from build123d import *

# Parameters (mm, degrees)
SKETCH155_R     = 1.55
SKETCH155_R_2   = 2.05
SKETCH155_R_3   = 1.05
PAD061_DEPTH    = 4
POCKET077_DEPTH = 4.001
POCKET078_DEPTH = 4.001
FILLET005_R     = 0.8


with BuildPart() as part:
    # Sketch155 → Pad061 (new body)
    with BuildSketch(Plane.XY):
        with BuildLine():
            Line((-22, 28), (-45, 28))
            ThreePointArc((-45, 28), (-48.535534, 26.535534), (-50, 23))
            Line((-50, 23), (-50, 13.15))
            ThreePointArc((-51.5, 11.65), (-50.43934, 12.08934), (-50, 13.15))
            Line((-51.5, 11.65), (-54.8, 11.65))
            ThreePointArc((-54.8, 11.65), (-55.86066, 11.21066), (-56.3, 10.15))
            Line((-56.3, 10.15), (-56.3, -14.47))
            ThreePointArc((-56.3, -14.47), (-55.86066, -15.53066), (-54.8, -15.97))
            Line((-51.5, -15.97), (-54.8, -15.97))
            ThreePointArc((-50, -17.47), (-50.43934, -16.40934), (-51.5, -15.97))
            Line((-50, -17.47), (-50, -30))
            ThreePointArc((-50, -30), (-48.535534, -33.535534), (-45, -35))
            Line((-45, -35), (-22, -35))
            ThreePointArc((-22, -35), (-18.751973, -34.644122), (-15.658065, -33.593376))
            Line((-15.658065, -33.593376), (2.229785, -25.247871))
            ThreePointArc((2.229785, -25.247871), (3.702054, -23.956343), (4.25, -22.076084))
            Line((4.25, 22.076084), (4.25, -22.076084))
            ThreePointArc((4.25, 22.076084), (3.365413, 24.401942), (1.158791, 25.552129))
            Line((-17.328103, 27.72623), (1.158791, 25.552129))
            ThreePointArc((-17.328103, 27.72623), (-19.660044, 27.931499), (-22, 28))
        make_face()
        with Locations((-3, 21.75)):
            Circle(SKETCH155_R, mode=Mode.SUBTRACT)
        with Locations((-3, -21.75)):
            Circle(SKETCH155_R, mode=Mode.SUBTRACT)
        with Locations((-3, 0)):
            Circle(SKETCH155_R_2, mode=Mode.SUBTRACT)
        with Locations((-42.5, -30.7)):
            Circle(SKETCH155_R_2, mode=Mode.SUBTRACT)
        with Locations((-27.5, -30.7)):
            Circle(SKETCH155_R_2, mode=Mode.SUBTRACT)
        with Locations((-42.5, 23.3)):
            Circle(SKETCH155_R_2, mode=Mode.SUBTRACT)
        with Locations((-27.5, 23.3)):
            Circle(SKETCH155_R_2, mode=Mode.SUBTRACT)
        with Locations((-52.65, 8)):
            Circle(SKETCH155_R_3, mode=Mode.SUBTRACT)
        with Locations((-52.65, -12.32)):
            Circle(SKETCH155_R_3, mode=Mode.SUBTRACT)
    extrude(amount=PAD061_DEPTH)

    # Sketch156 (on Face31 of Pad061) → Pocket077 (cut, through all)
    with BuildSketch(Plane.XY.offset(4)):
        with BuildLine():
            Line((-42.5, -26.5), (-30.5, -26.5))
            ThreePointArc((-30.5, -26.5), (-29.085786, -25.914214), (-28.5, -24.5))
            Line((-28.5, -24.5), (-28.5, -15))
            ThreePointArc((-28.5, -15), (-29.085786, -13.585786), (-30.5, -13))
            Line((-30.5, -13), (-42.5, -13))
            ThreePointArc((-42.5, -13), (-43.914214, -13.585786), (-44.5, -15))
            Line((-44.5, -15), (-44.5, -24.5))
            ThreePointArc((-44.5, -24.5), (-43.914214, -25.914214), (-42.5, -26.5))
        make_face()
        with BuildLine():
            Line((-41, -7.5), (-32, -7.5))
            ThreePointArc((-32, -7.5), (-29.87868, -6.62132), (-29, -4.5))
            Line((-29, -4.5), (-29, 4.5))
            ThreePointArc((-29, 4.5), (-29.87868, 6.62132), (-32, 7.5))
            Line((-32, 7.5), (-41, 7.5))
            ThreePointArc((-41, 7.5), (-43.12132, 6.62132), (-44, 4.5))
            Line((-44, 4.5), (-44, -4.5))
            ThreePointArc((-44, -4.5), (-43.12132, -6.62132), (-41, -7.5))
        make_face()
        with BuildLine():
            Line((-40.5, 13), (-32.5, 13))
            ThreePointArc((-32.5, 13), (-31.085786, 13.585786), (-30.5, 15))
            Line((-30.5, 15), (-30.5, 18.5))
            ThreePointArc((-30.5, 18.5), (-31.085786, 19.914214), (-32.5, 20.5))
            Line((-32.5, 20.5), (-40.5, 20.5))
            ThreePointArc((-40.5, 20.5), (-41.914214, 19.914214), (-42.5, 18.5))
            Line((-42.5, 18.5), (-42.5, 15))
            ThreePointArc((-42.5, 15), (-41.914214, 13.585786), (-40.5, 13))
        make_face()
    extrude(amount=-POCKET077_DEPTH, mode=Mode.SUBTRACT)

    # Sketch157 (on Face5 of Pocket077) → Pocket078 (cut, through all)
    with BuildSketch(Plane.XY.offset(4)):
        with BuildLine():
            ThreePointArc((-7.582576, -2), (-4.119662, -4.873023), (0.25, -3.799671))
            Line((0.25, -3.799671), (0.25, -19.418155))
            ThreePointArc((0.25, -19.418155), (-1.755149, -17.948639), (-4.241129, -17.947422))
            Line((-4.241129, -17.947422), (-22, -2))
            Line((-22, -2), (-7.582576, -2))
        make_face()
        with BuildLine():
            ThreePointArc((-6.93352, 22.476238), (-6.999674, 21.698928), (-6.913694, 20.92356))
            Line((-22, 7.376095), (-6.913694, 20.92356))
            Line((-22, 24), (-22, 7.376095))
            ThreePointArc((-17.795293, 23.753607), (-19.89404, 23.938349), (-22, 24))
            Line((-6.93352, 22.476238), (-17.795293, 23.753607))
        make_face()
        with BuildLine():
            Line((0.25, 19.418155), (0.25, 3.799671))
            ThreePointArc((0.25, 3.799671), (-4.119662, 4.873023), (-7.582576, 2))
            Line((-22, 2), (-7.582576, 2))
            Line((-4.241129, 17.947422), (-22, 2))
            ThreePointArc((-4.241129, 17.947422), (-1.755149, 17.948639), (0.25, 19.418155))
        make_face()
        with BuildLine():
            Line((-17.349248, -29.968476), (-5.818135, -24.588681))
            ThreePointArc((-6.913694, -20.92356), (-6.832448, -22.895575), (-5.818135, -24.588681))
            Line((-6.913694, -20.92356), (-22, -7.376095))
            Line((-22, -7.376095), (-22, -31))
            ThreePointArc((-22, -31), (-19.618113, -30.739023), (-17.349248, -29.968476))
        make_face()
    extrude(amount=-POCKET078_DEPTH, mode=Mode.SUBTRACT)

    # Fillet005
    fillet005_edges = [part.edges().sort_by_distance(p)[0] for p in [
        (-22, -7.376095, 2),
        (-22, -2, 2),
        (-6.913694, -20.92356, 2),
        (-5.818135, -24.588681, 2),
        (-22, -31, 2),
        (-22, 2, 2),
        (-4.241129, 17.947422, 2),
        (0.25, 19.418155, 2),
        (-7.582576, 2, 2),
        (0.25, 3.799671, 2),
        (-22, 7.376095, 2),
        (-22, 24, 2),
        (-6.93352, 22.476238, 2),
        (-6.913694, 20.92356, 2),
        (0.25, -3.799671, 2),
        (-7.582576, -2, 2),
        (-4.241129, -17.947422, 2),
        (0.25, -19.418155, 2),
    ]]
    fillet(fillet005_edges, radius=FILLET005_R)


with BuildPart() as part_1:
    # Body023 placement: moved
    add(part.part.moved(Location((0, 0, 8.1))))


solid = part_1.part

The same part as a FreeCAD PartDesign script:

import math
import FreeCAD as App
import Part
import Sketcher


def edges_at(feature, points):
    """Names of the edges that pass closest to the given points."""
    edges = feature.Shape.Edges
    near = lambda p: min(range(len(edges)), key=lambda i: edges[i].distToShape(Part.Vertex(*p))[0])
    return sorted({f"Edge{near(p) + 1}" for p in points})

doc = App.newDocument("Part")
body = doc.addObject("PartDesign::Body", "Body")

sketch1 = body.newObject("Sketcher::SketchObject", "Sketch")
sketch1.AttachmentSupport = (doc.getObject("XY_Plane"), [""])
sketch1.MapMode = "FlatFace"
sketch1.addGeometry([
    Part.LineSegment(App.Vector(-22, 28, 0), App.Vector(-45, 28, 0)),
    Part.ArcOfCircle(Part.Circle(App.Vector(-45, 23, 0), App.Vector(0, 0, 1), 5), math.radians(89.999996), math.radians(180.000004)),
    Part.LineSegment(App.Vector(-50, 23, 0), App.Vector(-50, 13.15, 0)),
    Part.ArcOfCircle(Part.Circle(App.Vector(-51.500001, 13.150001, 0), App.Vector(0, 0, 1), 1.500001), math.radians(-89.999978), math.radians(-0.000022)),
    Part.LineSegment(App.Vector(-51.5, 11.65, 0), App.Vector(-54.8, 11.65, 0)),
    Part.ArcOfCircle(Part.Circle(App.Vector(-54.799999, 10.149999, 0), App.Vector(0, 0, 1), 1.500001), math.radians(90.000022), math.radians(179.999978)),
    Part.LineSegment(App.Vector(-56.3, 10.15, 0), App.Vector(-56.3, -14.47, 0)),
    Part.ArcOfCircle(Part.Circle(App.Vector(-54.799999, -14.469999, 0), App.Vector(0, 0, 1), 1.500001), math.radians(-179.999978), math.radians(-90.000022)),
    Part.LineSegment(App.Vector(-54.8, -15.97, 0), App.Vector(-51.5, -15.97, 0)),
    Part.ArcOfCircle(Part.Circle(App.Vector(-51.500001, -17.470001, 0), App.Vector(0, 0, 1), 1.500001), math.radians(0.000022), math.radians(89.999978)),
    Part.LineSegment(App.Vector(-50, -17.47, 0), App.Vector(-50, -30, 0)),
    Part.ArcOfCircle(Part.Circle(App.Vector(-45, -30, 0), App.Vector(0, 0, 1), 5), math.radians(179.999996), math.radians(270.000004)),
    Part.LineSegment(App.Vector(-45, -35, 0), App.Vector(-22, -35, 0)),
    Part.ArcOfCircle(Part.Circle(App.Vector(-22.000004, -19.999977, 0), App.Vector(0, 0, 1), 15.000023), math.radians(-89.999984), math.radians(-64.988807)),
    Part.LineSegment(App.Vector(-15.658065, -33.593376, 0), App.Vector(2.229785, -25.247871, 0)),
    Part.ArcOfCircle(Part.Circle(App.Vector(0.749999, -22.076083, 0), App.Vector(0, 0, 1), 3.500001), math.radians(-64.988772), math.radians(-0.000018)),
    Part.LineSegment(App.Vector(4.25, -22.076084, 0), App.Vector(4.25, 22.076084, 0)),
    Part.ArcOfCircle(Part.Circle(App.Vector(0.750001, 22.076084, 0), App.Vector(0, 0, 1), 3.499999), math.radians(-0.000006), math.radians(83.292699)),
    Part.LineSegment(App.Vector(1.158791, 25.552129, 0), App.Vector(-17.328103, 27.72623, 0)),
    Part.ArcOfCircle(Part.Circle(App.Vector(-21.999994, -11.999849, 0), App.Vector(0, 0, 1), 39.999849), math.radians(83.292674), math.radians(90.000008)),
    Part.Circle(App.Vector(-42.5, -30.7, 0), App.Vector(0, 0, 1), 2.05),
    Part.Circle(App.Vector(-27.5, -30.7, 0), App.Vector(0, 0, 1), 2.05),
    Part.Circle(App.Vector(-52.65, -12.32, 0), App.Vector(0, 0, 1), 1.05),
    Part.Circle(App.Vector(-3, -21.75, 0), App.Vector(0, 0, 1), 1.55),
    Part.Circle(App.Vector(-52.65, 8, 0), App.Vector(0, 0, 1), 1.05),
    Part.Circle(App.Vector(-42.5, 23.3, 0), App.Vector(0, 0, 1), 2.05),
    Part.Circle(App.Vector(-27.5, 23.3, 0), App.Vector(0, 0, 1), 2.05),
    Part.Circle(App.Vector(-3, 0, 0), App.Vector(0, 0, 1), 2.05),
    Part.Circle(App.Vector(-3, 21.75, 0), App.Vector(0, 0, 1), 1.55),
], False)
sketch1.addConstraint([
    Sketcher.Constraint("Tangent", 0, 2, 1, 1),
    Sketcher.Constraint("Tangent", 1, 2, 2, 1),
    Sketcher.Constraint("Tangent", 2, 2, 3, 2),
    Sketcher.Constraint("Tangent", 3, 1, 4, 1),
    Sketcher.Constraint("Tangent", 4, 2, 5, 1),
    Sketcher.Constraint("Tangent", 5, 2, 6, 1),
    Sketcher.Constraint("Tangent", 6, 2, 7, 1),
    Sketcher.Constraint("Tangent", 7, 2, 8, 1),
    Sketcher.Constraint("Tangent", 8, 2, 9, 2),
    Sketcher.Constraint("Tangent", 9, 1, 10, 1),
    Sketcher.Constraint("Tangent", 10, 2, 11, 1),
    Sketcher.Constraint("Tangent", 11, 2, 12, 1),
    Sketcher.Constraint("Tangent", 12, 2, 13, 1),
    Sketcher.Constraint("Tangent", 13, 2, 14, 1),
    Sketcher.Constraint("Tangent", 14, 2, 15, 1),
    Sketcher.Constraint("Tangent", 15, 2, 16, 1),
    Sketcher.Constraint("Tangent", 16, 2, 17, 1),
    Sketcher.Constraint("Tangent", 17, 2, 18, 1),
    Sketcher.Constraint("Tangent", 18, 2, 19, 1),
    Sketcher.Constraint("Tangent", 19, 2, 0, 1),
    Sketcher.Constraint("Horizontal", 0),
    Sketcher.Constraint("Vertical", 2),
    Sketcher.Constraint("Horizontal", 4),
    Sketcher.Constraint("Vertical", 6),
    Sketcher.Constraint("Horizontal", 8),
    Sketcher.Constraint("Vertical", 10),
    Sketcher.Constraint("Horizontal", 12),
    Sketcher.Constraint("Vertical", 16),
    Sketcher.Constraint("Equal", 3, 5),
    Sketcher.Constraint("Equal", 5, 7),
    Sketcher.Constraint("Equal", 7, 9),
    Sketcher.Constraint("Equal", 1, 11),
    Sketcher.Constraint("Equal", 15, 17),
    Sketcher.Constraint("Equal", 20, 21),
    Sketcher.Constraint("Equal", 22, 24),
    Sketcher.Constraint("Equal", 21, 25),
    Sketcher.Constraint("Equal", 25, 26),
    Sketcher.Constraint("Equal", 26, 27),
    Sketcher.Constraint("Equal", 23, 28),
    Sketcher.Constraint("Symmetric", 23, 3, 28, 3, -1),
    Sketcher.Constraint("PointOnObject", 27, 3, -1),
    Sketcher.Constraint("Horizontal", 20, 3, 21, 3),
    Sketcher.Constraint("Horizontal", 25, 3, 26, 3),
    Sketcher.Constraint("Vertical", 3, 3, 9, 3),
    Sketcher.Constraint("Vertical", 22, 3, 24, 3),
    Sketcher.Constraint("Vertical", 20, 3, 25, 3),
    Sketcher.Constraint("Vertical", 21, 3, 26, 3),
    Sketcher.Constraint("Vertical", 23, 3, 27, 3),
    Sketcher.Constraint("Vertical", 12, 2, 19, 2),
    Sketcher.Constraint("Radius", 1, 5.0),
    Sketcher.Constraint("Diameter", 20, 4.1),
    Sketcher.Constraint("Diameter", 22, 2.1),
    Sketcher.Constraint("Diameter", 23, 3.1),
    Sketcher.Constraint("Radius", 3, 1.500001),
    Sketcher.Constraint("Radius", 15, 3.500001),
    Sketcher.Constraint("DistanceX", 0, 2, 0, 1, 23.0),
    Sketcher.Constraint("DistanceX", 4, 2, 4, 1, 3.3),
    Sketcher.Constraint("DistanceX", 1, 3, -1, 1, 45.0),
    Sketcher.Constraint("DistanceY", -1, 1, 1, 3, 23.0),
    Sketcher.Constraint("DistanceY", 11, 3, -1, 1, 30.0),
    Sketcher.Constraint("DistanceX", 23, 3, -1, 1, 3.0),
    Sketcher.Constraint("DistanceY", -1, 1, 24, 3, 8.0),
    Sketcher.Constraint("DistanceX", 9, 3, 20, 3, 9.000001),
    Sketcher.Constraint("DistanceX", 20, 3, 21, 3, 15.0),
    Sketcher.Constraint("DistanceY", 2, 2, 2, 1, 9.85),
    Sketcher.Constraint("DistanceY", 6, 2, 6, 1, 24.62),
    Sketcher.Constraint("DistanceY", 20, 3, -1, 1, 30.7),
    Sketcher.Constraint("DistanceY", -1, 1, 25, 3, 23.3),
    Sketcher.Constraint("DistanceX", -1, 1, 15, 3, 0.749999),
    Sketcher.Constraint("DistanceX", 22, 3, -1, 1, 52.65),
    Sketcher.Constraint("DistanceY", 22, 3, -1, 1, 12.32),
    Sketcher.Constraint("DistanceY", 23, 3, -1, 1, 21.75),
    Sketcher.Constraint("Radius", 19, 39.999849),
    Sketcher.Constraint("Radius", 13, 15.000023),
    Sketcher.Constraint("DistanceY", 16, 1, 16, 2, 44.152168),
    Sketcher.Constraint("DistanceY", 13, 2, 13, 3, 13.593399),
])
pad1 = body.newObject("PartDesign::Pad", "Pad")
pad1.Profile = sketch1
pad1.Length = 4

sketch2 = body.newObject("Sketcher::SketchObject", "Sketch001")
sketch2.AttachmentSupport = (doc.getObject("XY_Plane"), [""])
sketch2.MapMode = "FlatFace"
sketch2.AttachmentOffset = App.Placement(App.Vector(0, 0, 4), App.Rotation())
sketch2.addGeometry([
    Part.LineSegment(App.Vector(-42.5, -26.5, 0), App.Vector(-30.5, -26.5, 0)),
    Part.ArcOfCircle(Part.Circle(App.Vector(-30.499999, -24.500001, 0), App.Vector(0, 0, 1), 1.999999), math.radians(-90.000043), math.radians(0.000043)),
    Part.LineSegment(App.Vector(-28.5, -24.5, 0), App.Vector(-28.5, -15, 0)),
    Part.ArcOfCircle(Part.Circle(App.Vector(-30.499999, -14.999999, 0), App.Vector(0, 0, 1), 1.999999), math.radians(-0.000043), math.radians(90.000043)),
    Part.LineSegment(App.Vector(-30.5, -13, 0), App.Vector(-42.5, -13, 0)),
    Part.ArcOfCircle(Part.Circle(App.Vector(-42.500001, -14.999999, 0), App.Vector(0, 0, 1), 1.999999), math.radians(89.999957), math.radians(180.000043)),
    Part.LineSegment(App.Vector(-44.5, -15, 0), App.Vector(-44.5, -24.5, 0)),
    Part.ArcOfCircle(Part.Circle(App.Vector(-42.500001, -24.500001, 0), App.Vector(0, 0, 1), 1.999999), math.radians(179.999957), math.radians(270.000043)),
    Part.LineSegment(App.Vector(-41, -7.5, 0), App.Vector(-32, -7.5, 0)),
    Part.ArcOfCircle(Part.Circle(App.Vector(-32.000001, -4.499999, 0), App.Vector(0, 0, 1), 3.000001), math.radians(-89.999978), math.radians(-0.000022)),
    Part.LineSegment(App.Vector(-29, -4.5, 0), App.Vector(-29, 4.5, 0)),
    Part.ArcOfCircle(Part.Circle(App.Vector(-32.000001, 4.499999, 0), App.Vector(0, 0, 1), 3.000001), math.radians(0.000022), math.radians(89.999978)),
    Part.LineSegment(App.Vector(-32, 7.5, 0), App.Vector(-41, 7.5, 0)),
    Part.ArcOfCircle(Part.Circle(App.Vector(-40.999999, 4.499999, 0), App.Vector(0, 0, 1), 3.000001), math.radians(90.000022), math.radians(179.999978)),
    Part.LineSegment(App.Vector(-44, 4.5, 0), App.Vector(-44, -4.5, 0)),
    Part.ArcOfCircle(Part.Circle(App.Vector(-40.999999, -4.499999, 0), App.Vector(0, 0, 1), 3.000001), math.radians(-179.999978), math.radians(-90.000022)),
    Part.LineSegment(App.Vector(-40.5, 13, 0), App.Vector(-32.5, 13, 0)),
    Part.ArcOfCircle(Part.Circle(App.Vector(-32.499999, 14.999999, 0), App.Vector(0, 0, 1), 1.999999), math.radians(-90.000043), math.radians(0.000043)),
    Part.LineSegment(App.Vector(-30.5, 15, 0), App.Vector(-30.5, 18.5, 0)),
    Part.ArcOfCircle(Part.Circle(App.Vector(-32.499999, 18.500001, 0), App.Vector(0, 0, 1), 1.999999), math.radians(-0.000043), math.radians(90.000043)),
    Part.LineSegment(App.Vector(-32.5, 20.5, 0), App.Vector(-40.5, 20.5, 0)),
    Part.ArcOfCircle(Part.Circle(App.Vector(-40.500001, 18.500001, 0), App.Vector(0, 0, 1), 1.999999), math.radians(89.999957), math.radians(180.000043)),
    Part.LineSegment(App.Vector(-42.5, 18.5, 0), App.Vector(-42.5, 15, 0)),
    Part.ArcOfCircle(Part.Circle(App.Vector(-40.500001, 14.999999, 0), App.Vector(0, 0, 1), 1.999999), math.radians(179.999957), math.radians(270.000043)),
], False)
sketch2.addConstraint([
    Sketcher.Constraint("Tangent", 0, 2, 1, 1),
    Sketcher.Constraint("Tangent", 1, 2, 2, 1),
    Sketcher.Constraint("Tangent", 2, 2, 3, 1),
    Sketcher.Constraint("Tangent", 3, 2, 4, 1),
    Sketcher.Constraint("Tangent", 4, 2, 5, 1),
    Sketcher.Constraint("Tangent", 5, 2, 6, 1),
    Sketcher.Constraint("Tangent", 6, 2, 7, 1),
    Sketcher.Constraint("Tangent", 7, 2, 0, 1),
    Sketcher.Constraint("Tangent", 8, 2, 9, 1),
    Sketcher.Constraint("Tangent", 9, 2, 10, 1),
    Sketcher.Constraint("Tangent", 10, 2, 11, 1),
    Sketcher.Constraint("Tangent", 11, 2, 12, 1),
    Sketcher.Constraint("Tangent", 12, 2, 13, 1),
    Sketcher.Constraint("Tangent", 13, 2, 14, 1),
    Sketcher.Constraint("Tangent", 14, 2, 15, 1),
    Sketcher.Constraint("Tangent", 15, 2, 8, 1),
    Sketcher.Constraint("Tangent", 16, 2, 17, 1),
    Sketcher.Constraint("Tangent", 17, 2, 18, 1),
    Sketcher.Constraint("Tangent", 18, 2, 19, 1),
    Sketcher.Constraint("Tangent", 19, 2, 20, 1),
    Sketcher.Constraint("Tangent", 20, 2, 21, 1),
    Sketcher.Constraint("Tangent", 21, 2, 22, 1),
    Sketcher.Constraint("Tangent", 22, 2, 23, 1),
    Sketcher.Constraint("Tangent", 23, 2, 16, 1),
    Sketcher.Constraint("Horizontal", 0),
    Sketcher.Constraint("Vertical", 2),
    Sketcher.Constraint("Horizontal", 4),
    Sketcher.Constraint("Vertical", 6),
    Sketcher.Constraint("Horizontal", 8),
    Sketcher.Constraint("Vertical", 10),
    Sketcher.Constraint("Horizontal", 12),
    Sketcher.Constraint("Vertical", 14),
    Sketcher.Constraint("Horizontal", 16),
    Sketcher.Constraint("Vertical", 18),
    Sketcher.Constraint("Horizontal", 20),
    Sketcher.Constraint("Vertical", 22),
    Sketcher.Constraint("Equal", 1, 3),
    Sketcher.Constraint("Equal", 3, 5),
    Sketcher.Constraint("Equal", 5, 7),
    Sketcher.Constraint("Equal", 9, 11),
    Sketcher.Constraint("Equal", 11, 13),
    Sketcher.Constraint("Equal", 13, 15),
    Sketcher.Constraint("Equal", 7, 17),
    Sketcher.Constraint("Equal", 17, 19),
    Sketcher.Constraint("Equal", 19, 21),
    Sketcher.Constraint("Equal", 21, 23),
    Sketcher.Constraint("Vertical", 3, 2, 17, 2),
    Sketcher.Constraint("Vertical", 7, 2, 21, 2),
    Sketcher.Constraint("Equal", 12, 10),
    Sketcher.Constraint("Radius", 1, 1.999999),
    Sketcher.Constraint("Radius", 9, 3.000001),
    Sketcher.Constraint("DistanceX", 0, 1, 0, 2, 12.0),
    Sketcher.Constraint("DistanceX", 8, 1, 8, 2, 9.0),
    Sketcher.Constraint("DistanceY", 2, 1, 2, 2, 9.5),
    Sketcher.Constraint("DistanceY", 18, 1, 18, 2, 3.5),
    Sketcher.Constraint("DistanceY", 3, 3, -1, 1, 14.999999),
    Sketcher.Constraint("DistanceX", 9, 3, -1, 1, 32.000001),
    Sketcher.Constraint("DistanceY", -1, 1, 17, 3, 14.999999),
    Sketcher.Constraint("DistanceY", 1, 3, 11, 3, 29.0),
    Sketcher.Constraint("DistanceX", 1, 3, -1, 1, 30.499999),
])
pocket1 = body.newObject("PartDesign::Pocket", "Pocket")
pocket1.Profile = sketch2
pocket1.Type = "ThroughAll"

sketch3 = body.newObject("Sketcher::SketchObject", "Sketch002")
sketch3.AttachmentSupport = (doc.getObject("XY_Plane"), [""])
sketch3.MapMode = "FlatFace"
sketch3.AttachmentOffset = App.Placement(App.Vector(0, 0, 4), App.Rotation())
sketch3.addGeometry([
    Part.ArcOfCircle(Part.Circle(App.Vector(-3, 0.000001, 0), App.Vector(0, 0, 1), 5.000001), math.radians(-156.42181), math.radians(-49.458408)),
    Part.LineSegment(App.Vector(-7.582576, -2, 0), App.Vector(-22, -2, 0)),
    Part.LineSegment(App.Vector(-22, -2, 0), App.Vector(-4.241129, -17.947422, 0)),
    Part.ArcOfCircle(Part.Circle(App.Vector(-3, -21.750001, 0), App.Vector(0, 0, 1), 4.000001), math.radians(35.659099), math.radians(108.076233)),
    Part.LineSegment(App.Vector(0.25, -19.418155, 0), App.Vector(0.25, -3.799671, 0)),
    Part.ArcOfCircle(Part.Circle(App.Vector(-2.999986, 21.749999, 0), App.Vector(0, 0, 1), 4.000014), math.radians(169.539417), math.radians(191.923713)),
    Part.LineSegment(App.Vector(-6.93352, 22.476238, 0), App.Vector(-17.795293, 23.753607, 0)),
    Part.ArcOfCircle(Part.Circle(App.Vector(-21.999999, -11.999926, 0), App.Vector(0, 0, 1), 35.999926), math.radians(83.29268), math.radians(90.000002)),
    Part.LineSegment(App.Vector(-22, 24, 0), App.Vector(-22, 7.376095, 0)),
    Part.LineSegment(App.Vector(-22, 7.376095, 0), App.Vector(-6.913694, 20.92356, 0)),
    Part.LineSegment(App.Vector(0.25, 3.799671, 0), App.Vector(0.25, 19.418155, 0)),
    Part.ArcOfCircle(Part.Circle(App.Vector(-3, 21.750001, 0), App.Vector(0, 0, 1), 4.000001), math.radians(-108.076233), math.radians(-35.659099)),
    Part.LineSegment(App.Vector(-4.241129, 17.947422, 0), App.Vector(-22, 2, 0)),
    Part.LineSegment(App.Vector(-22, 2, 0), App.Vector(-7.582576, 2, 0)),
    Part.ArcOfCircle(Part.Circle(App.Vector(-3, -0.000001, 0), App.Vector(0, 0, 1), 5.000001), math.radians(49.458408), math.radians(156.42181)),
    Part.LineSegment(App.Vector(-17.349248, -29.968476, 0), App.Vector(-5.818135, -24.588681, 0)),
    Part.ArcOfCircle(Part.Circle(App.Vector(-3.000001, -21.749999, 0), App.Vector(0, 0, 1), 3.999999), math.radians(168.07625), math.radians(225.20812)),
    Part.LineSegment(App.Vector(-6.913694, -20.92356, 0), App.Vector(-22, -7.376095, 0)),
    Part.LineSegment(App.Vector(-22, -7.376095, 0), App.Vector(-22, -31, 0)),
    Part.ArcOfCircle(Part.Circle(App.Vector(-22.000001, -19.999994, 0), App.Vector(0, 0, 1), 11.000006), math.radians(-89.999997), math.radians(-64.988798)),
], False)
sketch3.addConstraint([
    Sketcher.Constraint("Coincident", 0, 1, 1, 1),
    Sketcher.Constraint("Coincident", 1, 2, 2, 1),
    Sketcher.Constraint("Coincident", 2, 2, 3, 2),
    Sketcher.Constraint("Coincident", 3, 1, 4, 1),
    Sketcher.Constraint("Coincident", 4, 2, 0, 2),
    Sketcher.Constraint("Coincident", 5, 1, 6, 1),
    Sketcher.Constraint("Tangent", 6, 2, 7, 1),
    Sketcher.Constraint("Coincident", 7, 2, 8, 1),
    Sketcher.Constraint("Coincident", 8, 2, 9, 1),
    Sketcher.Constraint("Coincident", 9, 2, 5, 2),
    Sketcher.Constraint("Coincident", 10, 2, 11, 2),
    Sketcher.Constraint("Coincident", 11, 1, 12, 1),
    Sketcher.Constraint("Coincident", 12, 2, 13, 1),
    Sketcher.Constraint("Coincident", 13, 2, 14, 2),
    Sketcher.Constraint("Coincident", 14, 1, 10, 1),
    Sketcher.Constraint("Coincident", 15, 2, 16, 2),
    Sketcher.Constraint("Coincident", 16, 1, 17, 1),
    Sketcher.Constraint("Coincident", 17, 2, 18, 1),
    Sketcher.Constraint("Coincident", 18, 2, 19, 1),
    Sketcher.Constraint("Tangent", 19, 2, 15, 1),
    Sketcher.Constraint("Horizontal", 1),
    Sketcher.Constraint("Vertical", 4),
    Sketcher.Constraint("Vertical", 8),
    Sketcher.Constraint("Vertical", 10),
    Sketcher.Constraint("Horizontal", 13),
    Sketcher.Constraint("Vertical", 18),
    Sketcher.Constraint("Coincident", 14, 3, 0, 3),
    Sketcher.Constraint("Coincident", 16, 3, 3, 3),
    Sketcher.Constraint("Equal", 3, 11),
    Sketcher.Constraint("Equal", 0, 14),
    Sketcher.Constraint("Equal", 11, 16),
    Sketcher.Constraint("Symmetric", 3, 3, 11, 3, -1),
    Sketcher.Constraint("Symmetric", 1, 2, 12, 2, -1),
    Sketcher.Constraint("Symmetric", 4, 2, 14, 1, -1),
    Sketcher.Constraint("Symmetric", 9, 2, 16, 1, -1),
    Sketcher.Constraint("Symmetric", 8, 2, 17, 2, -1),
    Sketcher.Constraint("Parallel", 9, 12),
    Sketcher.Constraint("Parallel", 2, 17),
    Sketcher.Constraint("Horizontal", 5, 3, 11, 3),
    Sketcher.Constraint("Vertical", 0, 3, 3, 3),
    Sketcher.Constraint("Vertical", 7, 3, 19, 3),
    Sketcher.Constraint("Vertical", 19, 3, 1, 2),
    Sketcher.Constraint("Vertical", 1, 2, 7, 2),
    Sketcher.Constraint("Radius", 0, 5.000001),
    Sketcher.Constraint("Radius", 3, 4.000001),
    Sketcher.Constraint("DistanceX", 0, 3, -1, 1, 3.0),
    Sketcher.Constraint("DistanceX", 7, 3, -1, 1, 21.999999),
    Sketcher.Constraint("DistanceY", 0, 1, -1, 1, 2.0),
    Sketcher.Constraint("DistanceY", -1, 1, 7, 2, 24.0),
    Sketcher.Constraint("DistanceY", 18, 2, -1, 1, 31.0),
    Sketcher.Constraint("DistanceY", 3, 3, 5, 3, 43.5),
    Sketcher.Constraint("DistanceX", -1, 1, 3, 1, 0.25),
    Sketcher.Constraint("Radius", 5, 4.000014),
    Sketcher.Constraint("Radius", 7, 35.999926),
    Sketcher.Constraint("Radius", 19, 11.000006),
    Sketcher.Constraint("DistanceX", 6, 2, 9, 2, 10.881599),
    Sketcher.Constraint("DistanceY", 19, 3, 17, 2, 12.623899),
    Sketcher.Constraint("Distance", 9, 20.276352),
    Sketcher.Constraint("DistanceY", 15, 2, -1, 1, 24.588681),
])
pocket2 = body.newObject("PartDesign::Pocket", "Pocket001")
pocket2.Profile = sketch3
pocket2.Type = "ThroughAll"
doc.recompute()

fillet = body.newObject("PartDesign::Fillet", "Fillet")
fillet.Base = (pocket2, edges_at(pocket2, [
    (-22, -7.376, 2),
    (-22, -2, 2),
    (-6.914, -20.924, 2),
    (-5.818, -24.589, 2),
    (-22, -31, 2),
    (-22, 2, 2),
    (-4.241, 17.947, 2),
    (0.25, 19.418, 2),
    (-7.583, 2, 2),
    (0.25, 3.8, 2),
    (-22, 7.376, 2),
    (-22, 24, 2),
    (-6.934, 22.476, 2),
    (-6.914, 20.924, 2),
    (0.25, -3.8, 2),
    (-7.583, -2, 2),
    (-4.241, -17.947, 2),
    (0.25, -19.418, 2),
]))
fillet.Radius = 0.8
body2 = doc.addObject("PartDesign::Body", "Body001")
doc.recompute()

body.Placement = App.Placement(App.Vector(0, 0, 8.1), App.Rotation(App.Vector(0, 0, 1), 0))
boolean = body2.newObject("PartDesign::Boolean", "Boolean")
boolean.Type = "Fuse"
boolean.addObjects([body])

doc.recompute()
